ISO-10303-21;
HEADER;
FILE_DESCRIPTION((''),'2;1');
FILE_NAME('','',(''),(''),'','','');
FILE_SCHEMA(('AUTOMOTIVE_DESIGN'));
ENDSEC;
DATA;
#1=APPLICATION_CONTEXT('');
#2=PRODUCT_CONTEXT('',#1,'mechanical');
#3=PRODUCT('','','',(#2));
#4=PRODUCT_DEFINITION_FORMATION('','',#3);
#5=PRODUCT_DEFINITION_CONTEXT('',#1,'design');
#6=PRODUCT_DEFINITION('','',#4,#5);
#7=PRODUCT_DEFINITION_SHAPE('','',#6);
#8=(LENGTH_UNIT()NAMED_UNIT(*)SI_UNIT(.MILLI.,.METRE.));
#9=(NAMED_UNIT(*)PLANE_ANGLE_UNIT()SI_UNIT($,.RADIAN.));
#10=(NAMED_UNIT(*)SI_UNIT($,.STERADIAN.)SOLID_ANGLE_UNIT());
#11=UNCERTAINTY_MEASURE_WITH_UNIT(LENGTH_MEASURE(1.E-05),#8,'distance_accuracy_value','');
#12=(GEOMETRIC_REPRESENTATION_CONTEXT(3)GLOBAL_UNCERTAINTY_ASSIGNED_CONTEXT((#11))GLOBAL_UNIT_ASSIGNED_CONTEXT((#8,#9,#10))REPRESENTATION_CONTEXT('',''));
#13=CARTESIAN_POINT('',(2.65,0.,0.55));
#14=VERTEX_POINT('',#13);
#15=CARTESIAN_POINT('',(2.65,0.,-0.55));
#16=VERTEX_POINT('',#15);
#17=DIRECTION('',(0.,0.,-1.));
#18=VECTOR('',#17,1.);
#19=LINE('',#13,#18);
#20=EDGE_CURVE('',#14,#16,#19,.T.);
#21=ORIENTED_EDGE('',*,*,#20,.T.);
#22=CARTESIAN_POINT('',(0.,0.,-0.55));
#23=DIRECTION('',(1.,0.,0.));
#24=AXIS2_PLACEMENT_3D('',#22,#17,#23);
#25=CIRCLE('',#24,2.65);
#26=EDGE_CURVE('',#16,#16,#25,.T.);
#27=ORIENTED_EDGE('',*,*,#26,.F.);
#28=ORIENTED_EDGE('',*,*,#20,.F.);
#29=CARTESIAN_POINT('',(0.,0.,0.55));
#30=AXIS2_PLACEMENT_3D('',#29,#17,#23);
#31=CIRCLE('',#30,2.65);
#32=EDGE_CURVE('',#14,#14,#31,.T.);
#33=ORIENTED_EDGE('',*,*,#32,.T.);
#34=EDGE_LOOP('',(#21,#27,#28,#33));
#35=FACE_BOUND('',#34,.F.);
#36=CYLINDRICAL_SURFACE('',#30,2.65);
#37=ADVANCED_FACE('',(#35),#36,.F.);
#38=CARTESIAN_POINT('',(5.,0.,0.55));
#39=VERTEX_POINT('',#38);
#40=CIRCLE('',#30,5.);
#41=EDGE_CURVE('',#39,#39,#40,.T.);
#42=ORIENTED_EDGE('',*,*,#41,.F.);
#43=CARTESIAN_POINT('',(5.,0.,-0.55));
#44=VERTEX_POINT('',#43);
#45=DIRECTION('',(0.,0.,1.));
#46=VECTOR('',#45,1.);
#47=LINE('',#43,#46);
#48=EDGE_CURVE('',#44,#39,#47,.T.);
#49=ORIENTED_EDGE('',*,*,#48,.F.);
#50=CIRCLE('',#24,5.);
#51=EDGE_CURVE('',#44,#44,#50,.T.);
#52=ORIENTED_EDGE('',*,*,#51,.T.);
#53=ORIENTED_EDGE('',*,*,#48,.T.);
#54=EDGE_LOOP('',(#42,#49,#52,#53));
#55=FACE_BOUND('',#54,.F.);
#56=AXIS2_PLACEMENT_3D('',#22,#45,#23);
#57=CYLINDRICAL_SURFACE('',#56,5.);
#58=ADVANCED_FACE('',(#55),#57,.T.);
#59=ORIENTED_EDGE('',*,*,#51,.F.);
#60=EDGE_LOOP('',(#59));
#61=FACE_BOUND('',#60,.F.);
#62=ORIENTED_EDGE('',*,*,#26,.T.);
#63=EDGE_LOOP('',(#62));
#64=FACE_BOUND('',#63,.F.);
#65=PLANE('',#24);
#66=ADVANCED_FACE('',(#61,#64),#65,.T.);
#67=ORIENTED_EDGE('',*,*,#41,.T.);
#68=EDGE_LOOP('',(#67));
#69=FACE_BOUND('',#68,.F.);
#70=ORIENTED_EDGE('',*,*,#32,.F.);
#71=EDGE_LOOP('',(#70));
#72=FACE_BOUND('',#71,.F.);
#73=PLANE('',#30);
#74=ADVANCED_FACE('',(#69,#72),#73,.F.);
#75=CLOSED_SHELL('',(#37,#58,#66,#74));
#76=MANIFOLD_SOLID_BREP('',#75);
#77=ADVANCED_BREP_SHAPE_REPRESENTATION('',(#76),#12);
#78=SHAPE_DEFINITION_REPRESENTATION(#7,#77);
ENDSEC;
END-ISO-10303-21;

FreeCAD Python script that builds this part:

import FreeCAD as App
import Part
import Sketcher
Q = App.Units.Quantity

doc = App.newDocument("Part")
body = doc.addObject("PartDesign::Body", "Body")

# Sketch on XZ plane
sketch1 = body.newObject("Sketcher::SketchObject", "Sketch")
sketch1.AttachmentSupport = (doc.getObject("XZ_Plane"), [""])
sketch1.MapMode = "FlatFace"
sketch1.addGeometry(Part.LineSegment(App.Vector(2.6, 0.6, 0), App.Vector(2.6, -0.6, 0)), False)
sketch1.addGeometry(Part.LineSegment(App.Vector(2.6, -0.6, 0), App.Vector(5, -0.6, 0)), False)
sketch1.addGeometry(Part.LineSegment(App.Vector(5, -0.6, 0), App.Vector(5, 0.6, 0)), False)
sketch1.addGeometry(Part.LineSegment(App.Vector(5, 0.6, 0), App.Vector(2.6, 0.6, 0)), False)
sketch1.addConstraint(Sketcher.Constraint("Coincident", 0, 2, 1, 1))
sketch1.addConstraint(Sketcher.Constraint("Coincident", 1, 2, 2, 1))
sketch1.addConstraint(Sketcher.Constraint("Coincident", 2, 2, 3, 1))
sketch1.addConstraint(Sketcher.Constraint("Coincident", 3, 2, 0, 1))
sketch1.addConstraint(Sketcher.Constraint("Vertical", 0))
sketch1.addConstraint(Sketcher.Constraint("Horizontal", 1))
sketch1.addConstraint(Sketcher.Constraint("Vertical", 2))
sketch1.addConstraint(Sketcher.Constraint("Horizontal", 3))
sketch1.addConstraint(Sketcher.Constraint("DistanceX", -1, 1, 1, 2, Q("5 mm")))
sketch1.addConstraint(Sketcher.Constraint("DistanceY", 0, 2, 0, 1, Q("1.1 mm")))
sketch1.addConstraint(Sketcher.Constraint("DistanceX", 1, 1, 1, 2, Q("2.35 mm")))
sketch1.addConstraint(Sketcher.Constraint("DistanceY", 0, 2, -1, 1, Q("0.55 mm")))
revolution = body.newObject("PartDesign::Revolution", "Revolution")
revolution.Profile = sketch1
revolution.ReferenceAxis = (sketch1, ["V_Axis"])
revolution.Angle = 360

doc.recompute()
